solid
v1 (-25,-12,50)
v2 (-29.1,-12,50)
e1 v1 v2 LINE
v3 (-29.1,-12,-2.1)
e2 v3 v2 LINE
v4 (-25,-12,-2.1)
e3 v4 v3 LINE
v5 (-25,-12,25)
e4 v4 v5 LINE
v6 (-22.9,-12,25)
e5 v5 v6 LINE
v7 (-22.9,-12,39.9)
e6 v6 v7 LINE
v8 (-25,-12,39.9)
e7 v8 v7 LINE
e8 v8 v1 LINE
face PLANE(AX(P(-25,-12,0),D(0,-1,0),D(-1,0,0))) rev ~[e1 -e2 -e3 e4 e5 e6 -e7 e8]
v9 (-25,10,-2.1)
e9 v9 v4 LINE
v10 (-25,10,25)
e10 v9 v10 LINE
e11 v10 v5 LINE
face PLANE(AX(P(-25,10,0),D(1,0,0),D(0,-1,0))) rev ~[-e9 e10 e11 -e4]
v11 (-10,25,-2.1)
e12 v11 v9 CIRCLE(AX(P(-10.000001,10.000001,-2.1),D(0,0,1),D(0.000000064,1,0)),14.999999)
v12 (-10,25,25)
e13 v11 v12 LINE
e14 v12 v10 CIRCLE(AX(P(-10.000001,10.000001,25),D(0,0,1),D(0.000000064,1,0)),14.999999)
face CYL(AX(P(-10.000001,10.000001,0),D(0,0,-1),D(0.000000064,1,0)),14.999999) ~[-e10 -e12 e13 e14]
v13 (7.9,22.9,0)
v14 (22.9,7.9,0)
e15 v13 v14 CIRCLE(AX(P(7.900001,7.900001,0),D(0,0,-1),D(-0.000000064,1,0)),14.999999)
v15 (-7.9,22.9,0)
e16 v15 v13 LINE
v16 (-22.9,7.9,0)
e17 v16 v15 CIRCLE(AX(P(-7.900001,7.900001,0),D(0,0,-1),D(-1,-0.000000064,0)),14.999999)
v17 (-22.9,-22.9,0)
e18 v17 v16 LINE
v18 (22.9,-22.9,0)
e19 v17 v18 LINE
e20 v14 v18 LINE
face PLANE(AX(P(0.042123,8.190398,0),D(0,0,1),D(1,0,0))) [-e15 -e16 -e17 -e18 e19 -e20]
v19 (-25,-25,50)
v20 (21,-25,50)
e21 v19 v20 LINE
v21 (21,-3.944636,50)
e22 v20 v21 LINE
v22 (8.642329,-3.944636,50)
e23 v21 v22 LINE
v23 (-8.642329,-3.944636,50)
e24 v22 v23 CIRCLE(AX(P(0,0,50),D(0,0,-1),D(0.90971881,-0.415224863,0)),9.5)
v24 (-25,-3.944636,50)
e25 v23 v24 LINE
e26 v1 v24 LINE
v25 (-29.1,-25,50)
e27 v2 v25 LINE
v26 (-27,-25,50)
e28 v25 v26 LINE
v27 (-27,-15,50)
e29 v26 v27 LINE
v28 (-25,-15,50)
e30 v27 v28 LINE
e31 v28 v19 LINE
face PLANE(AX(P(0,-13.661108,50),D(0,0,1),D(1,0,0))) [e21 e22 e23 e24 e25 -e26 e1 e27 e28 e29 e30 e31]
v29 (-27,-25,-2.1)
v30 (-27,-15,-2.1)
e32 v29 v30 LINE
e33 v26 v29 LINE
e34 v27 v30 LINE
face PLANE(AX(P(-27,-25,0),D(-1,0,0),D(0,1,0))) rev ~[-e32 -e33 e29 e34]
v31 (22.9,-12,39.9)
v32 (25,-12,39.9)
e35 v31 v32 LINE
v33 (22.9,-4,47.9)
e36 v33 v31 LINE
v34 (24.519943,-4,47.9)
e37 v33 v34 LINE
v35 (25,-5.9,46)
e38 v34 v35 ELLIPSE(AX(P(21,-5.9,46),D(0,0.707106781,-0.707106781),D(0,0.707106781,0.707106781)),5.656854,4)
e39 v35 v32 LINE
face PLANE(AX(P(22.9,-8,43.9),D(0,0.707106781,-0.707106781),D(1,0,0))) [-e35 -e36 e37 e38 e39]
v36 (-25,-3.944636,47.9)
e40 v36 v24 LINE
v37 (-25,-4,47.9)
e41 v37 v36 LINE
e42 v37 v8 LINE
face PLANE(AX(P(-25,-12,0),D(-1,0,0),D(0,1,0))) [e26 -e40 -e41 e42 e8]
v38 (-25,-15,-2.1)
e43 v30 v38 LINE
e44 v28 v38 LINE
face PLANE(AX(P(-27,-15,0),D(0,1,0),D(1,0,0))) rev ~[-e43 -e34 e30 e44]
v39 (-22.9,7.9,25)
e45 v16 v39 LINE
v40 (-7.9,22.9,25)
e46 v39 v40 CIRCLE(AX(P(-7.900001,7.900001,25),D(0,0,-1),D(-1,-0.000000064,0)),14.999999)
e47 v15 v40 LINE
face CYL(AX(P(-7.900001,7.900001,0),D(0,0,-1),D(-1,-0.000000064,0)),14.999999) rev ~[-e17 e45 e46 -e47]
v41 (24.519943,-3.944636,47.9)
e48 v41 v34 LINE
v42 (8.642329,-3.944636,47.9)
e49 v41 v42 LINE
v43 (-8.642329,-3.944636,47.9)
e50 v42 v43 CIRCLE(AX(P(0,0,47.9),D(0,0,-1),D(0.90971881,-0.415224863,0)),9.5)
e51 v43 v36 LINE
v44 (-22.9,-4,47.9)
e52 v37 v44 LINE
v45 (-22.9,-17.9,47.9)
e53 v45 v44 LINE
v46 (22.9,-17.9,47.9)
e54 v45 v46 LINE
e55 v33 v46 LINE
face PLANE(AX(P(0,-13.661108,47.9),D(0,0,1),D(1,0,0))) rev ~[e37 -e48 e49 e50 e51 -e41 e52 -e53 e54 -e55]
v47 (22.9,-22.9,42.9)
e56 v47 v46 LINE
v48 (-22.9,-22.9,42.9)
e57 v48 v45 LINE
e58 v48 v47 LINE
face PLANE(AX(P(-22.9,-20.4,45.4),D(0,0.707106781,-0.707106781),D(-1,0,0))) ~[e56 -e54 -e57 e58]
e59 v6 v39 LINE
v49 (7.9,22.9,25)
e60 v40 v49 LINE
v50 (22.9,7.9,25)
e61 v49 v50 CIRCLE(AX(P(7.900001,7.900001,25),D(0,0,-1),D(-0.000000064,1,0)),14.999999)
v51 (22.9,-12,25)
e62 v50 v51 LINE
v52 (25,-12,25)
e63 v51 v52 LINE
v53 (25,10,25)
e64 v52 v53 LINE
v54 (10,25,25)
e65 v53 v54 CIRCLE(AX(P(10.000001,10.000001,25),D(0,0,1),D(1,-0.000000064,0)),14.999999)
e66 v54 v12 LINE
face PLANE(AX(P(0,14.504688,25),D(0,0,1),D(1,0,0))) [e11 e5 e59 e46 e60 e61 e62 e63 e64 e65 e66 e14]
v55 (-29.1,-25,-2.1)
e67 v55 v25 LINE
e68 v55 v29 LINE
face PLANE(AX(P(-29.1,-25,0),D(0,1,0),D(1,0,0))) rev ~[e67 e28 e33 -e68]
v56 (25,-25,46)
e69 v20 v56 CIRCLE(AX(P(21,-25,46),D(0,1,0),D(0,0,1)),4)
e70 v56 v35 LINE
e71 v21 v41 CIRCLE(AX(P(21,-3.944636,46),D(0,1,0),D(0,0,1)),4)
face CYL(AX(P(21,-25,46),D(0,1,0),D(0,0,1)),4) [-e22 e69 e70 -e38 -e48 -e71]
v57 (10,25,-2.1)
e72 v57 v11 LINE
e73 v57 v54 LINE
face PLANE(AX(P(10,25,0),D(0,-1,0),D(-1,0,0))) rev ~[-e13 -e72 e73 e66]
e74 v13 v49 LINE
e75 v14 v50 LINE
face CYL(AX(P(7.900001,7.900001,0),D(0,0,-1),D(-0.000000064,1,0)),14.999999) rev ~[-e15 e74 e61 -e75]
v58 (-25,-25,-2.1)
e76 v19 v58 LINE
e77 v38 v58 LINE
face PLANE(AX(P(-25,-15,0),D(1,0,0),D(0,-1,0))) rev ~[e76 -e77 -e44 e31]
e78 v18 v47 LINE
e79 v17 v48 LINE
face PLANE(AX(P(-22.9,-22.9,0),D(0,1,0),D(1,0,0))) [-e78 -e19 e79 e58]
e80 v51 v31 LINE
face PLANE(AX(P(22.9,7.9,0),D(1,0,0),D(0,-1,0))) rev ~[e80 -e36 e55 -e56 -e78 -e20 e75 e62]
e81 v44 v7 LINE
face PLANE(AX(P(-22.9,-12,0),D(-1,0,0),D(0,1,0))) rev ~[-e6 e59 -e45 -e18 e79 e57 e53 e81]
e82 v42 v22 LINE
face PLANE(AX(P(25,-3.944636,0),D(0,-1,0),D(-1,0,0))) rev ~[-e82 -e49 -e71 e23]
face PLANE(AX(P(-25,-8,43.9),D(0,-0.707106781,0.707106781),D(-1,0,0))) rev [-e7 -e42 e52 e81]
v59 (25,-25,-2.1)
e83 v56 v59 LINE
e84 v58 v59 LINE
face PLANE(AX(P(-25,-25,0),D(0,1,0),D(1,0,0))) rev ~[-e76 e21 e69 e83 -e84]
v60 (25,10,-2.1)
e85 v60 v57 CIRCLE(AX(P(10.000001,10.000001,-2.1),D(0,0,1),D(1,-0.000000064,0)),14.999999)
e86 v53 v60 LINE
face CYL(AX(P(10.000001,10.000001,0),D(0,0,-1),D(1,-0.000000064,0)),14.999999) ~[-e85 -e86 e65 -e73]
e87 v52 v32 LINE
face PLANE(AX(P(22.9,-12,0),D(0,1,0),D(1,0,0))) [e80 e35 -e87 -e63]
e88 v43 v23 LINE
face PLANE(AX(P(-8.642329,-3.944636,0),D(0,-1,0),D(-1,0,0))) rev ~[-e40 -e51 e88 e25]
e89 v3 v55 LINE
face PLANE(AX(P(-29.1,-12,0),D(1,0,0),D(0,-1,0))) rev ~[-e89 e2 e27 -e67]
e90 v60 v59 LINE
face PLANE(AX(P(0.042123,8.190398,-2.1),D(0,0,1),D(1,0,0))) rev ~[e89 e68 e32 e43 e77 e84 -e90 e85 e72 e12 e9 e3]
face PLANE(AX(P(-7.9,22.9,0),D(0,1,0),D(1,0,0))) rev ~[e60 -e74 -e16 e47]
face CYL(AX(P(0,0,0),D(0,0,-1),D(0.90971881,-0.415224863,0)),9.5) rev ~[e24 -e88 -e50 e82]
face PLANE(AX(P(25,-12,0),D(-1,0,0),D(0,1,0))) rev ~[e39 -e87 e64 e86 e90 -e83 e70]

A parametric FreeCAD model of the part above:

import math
import FreeCAD as App
import Part
import Sketcher
Q = App.Units.Quantity


def edges_at(feature, points):
    """Names of the edges that pass closest to the given points."""
    edges = feature.Shape.Edges
    near = lambda p: min(range(len(edges)), key=lambda i: edges[i].distToShape(Part.Vertex(*p))[0])
    return sorted({f"Edge{near(p) + 1}" for p in points})

doc = App.newDocument("Part")
params = doc.addObject("Spreadsheet::Sheet", "Params")
for row, (alias, value) in enumerate([
    ("sketch1_radius", "14.999999 mm"),
    ("sketch1_width", "2 mm"),
    ("sketch1_width2", "50 mm"),
    ("sketch1_height", "13 mm"),
    ("sketch1_height2", "10 mm"),
    ("pad1_length", "2.1 mm"),
    ("sketch2_radius", "9.5 mm"),
    ("sketch2_width", "2 mm"),
    ("sketch2_width2", "50 mm"),
    ("sketch2_height", "13 mm"),
    ("sketch2_height2", "10 mm"),
    ("pad2_length", "50 mm"),
    ("pad2_length2", "2.1 mm"),
    ("sketch3_radius", "9.5 mm"),
    ("sketch3_width", "45.8 mm"),
    ("sketch3_width2", "2.1 mm"),
    ("sketch3_height", "10.9 mm"),
    ("pocket1_length", "47.9 mm"),
    ("chamfer_size", "5 mm"),
    ("sketch4_radius", "14.999999 mm"),
    ("sketch4_width", "20 mm"),
    ("sketch4_height", "22 mm"),
    ("sketch4_width2", "2.1 mm"),
    ("sketch4_height2", "19.9 mm"),
    ("pad3_length", "25 mm"),
    ("chamfer2_size", "8 mm"),
    ("fillet_radius", "4 mm"),
], start=1):
    params.set(f"A{row}", alias)
    params.set(f"B{row}", "=" + value)
    params.setAlias(f"B{row}", alias)

body = doc.addObject("PartDesign::Body", "Body")

sketch1 = body.newObject("Sketcher::SketchObject", "Sketch")
sketch1.AttachmentSupport = (doc.getObject("XY_Plane"), [""])
sketch1.MapMode = "FlatFace"
sketch1.addGeometry(Part.LineSegment(App.Vector(-25, -12, 0), App.Vector(-29.1, -12, 0)), False)
sketch1.addGeometry(Part.LineSegment(App.Vector(-29.1, -12, 0), App.Vector(-29.1, -25, 0)), False)
sketch1.addGeometry(Part.LineSegment(App.Vector(-29.1, -25, 0), App.Vector(-27, -25, 0)), False)
sketch1.addGeometry(Part.LineSegment(App.Vector(-27, -25, 0), App.Vector(-27, -15, 0)), False)
sketch1.addGeometry(Part.LineSegment(App.Vector(-27, -15, 0), App.Vector(-25, -15, 0)), False)
sketch1.addGeometry(Part.LineSegment(App.Vector(-25, -15, 0), App.Vector(-25, -25, 0)), False)
sketch1.addGeometry(Part.LineSegment(App.Vector(-25, -25, 0), App.Vector(25, -25, 0)), False)
sketch1.addGeometry(Part.LineSegment(App.Vector(25, -25, 0), App.Vector(25, 10, 0)), False)
sketch1.addGeometry(Part.ArcOfCircle(Part.Circle(App.Vector(10, 10, 0), App.Vector(0, 0, 1), 15), math.radians(0), math.radians(90)), False)
sketch1.addGeometry(Part.LineSegment(App.Vector(10, 25, 0), App.Vector(-10, 25, 0)), False)
sketch1.addGeometry(Part.ArcOfCircle(Part.Circle(App.Vector(-10, 10, 0), App.Vector(0, 0, 1), 15), math.radians(90), math.radians(180)), False)
sketch1.addGeometry(Part.LineSegment(App.Vector(-25, 10, 0), App.Vector(-25, -12, 0)), False)
sketch1.addConstraint(Sketcher.Constraint("Coincident", 0, 2, 1, 1))
sketch1.addConstraint(Sketcher.Constraint("Coincident", 1, 2, 2, 1))
sketch1.addConstraint(Sketcher.Constraint("Coincident", 2, 2, 3, 1))
sketch1.addConstraint(Sketcher.Constraint("Coincident", 3, 2, 4, 1))
sketch1.addConstraint(Sketcher.Constraint("Coincident", 4, 2, 5, 1))
sketch1.addConstraint(Sketcher.Constraint("Coincident", 5, 2, 6, 1))
sketch1.addConstraint(Sketcher.Constraint("Coincident", 6, 2, 7, 1))
sketch1.addConstraint(Sketcher.Constraint("Tangent", 7, 2, 8, 1))
sketch1.addConstraint(Sketcher.Constraint("Tangent", 8, 2, 9, 1))
sketch1.addConstraint(Sketcher.Constraint("Tangent", 9, 2, 10, 1))
sketch1.addConstraint(Sketcher.Constraint("Tangent", 10, 2, 11, 1))
sketch1.addConstraint(Sketcher.Constraint("Coincident", 11, 2, 0, 1))
sketch1.addConstraint(Sketcher.Constraint("Horizontal", 0))
sketch1.addConstraint(Sketcher.Constraint("Vertical", 1))
sketch1.addConstraint(Sketcher.Constraint("Horizontal", 2))
sketch1.addConstraint(Sketcher.Constraint("Vertical", 3))
sketch1.addConstraint(Sketcher.Constraint("Horizontal", 4))
sketch1.addConstraint(Sketcher.Constraint("Vertical", 5))
sketch1.addConstraint(Sketcher.Constraint("Horizontal", 6))
sketch1.addConstraint(Sketcher.Constraint("Vertical", 7))
sketch1.addConstraint(Sketcher.Constraint("Horizontal", 9))
sketch1.addConstraint(Sketcher.Constraint("Vertical", 11))
sketch1.addConstraint(Sketcher.Constraint("Equal", 8, 10))
sketch1.addConstraint(Sketcher.Constraint("Horizontal", 2, 2, 5, 2))
sketch1.addConstraint(Sketcher.Constraint("Vertical", 5, 2, 10, 2))
sketch1.addConstraint(Sketcher.Constraint("Radius", 8, Q("14.999999 mm")))
sketch1.addConstraint(Sketcher.Constraint("DistanceX", 4, 1, 4, 2, Q("2 mm")))
sketch1.addConstraint(Sketcher.Constraint("DistanceX", 6, 1, 6, 2, Q("50 mm")))
sketch1.addConstraint(Sketcher.Constraint("DistanceY", 1, 2, 1, 1, Q("13 mm")))
sketch1.addConstraint(Sketcher.Constraint("DistanceY", 3, 1, 3, 2, Q("10 mm")))
sketch1.addConstraint(Sketcher.Constraint("DistanceY", 7, 1, 7, 2, Q("35 mm")))
sketch1.addConstraint(Sketcher.Constraint("DistanceX", 0, 2, 0, 1, Q("4.1 mm")))
sketch1.addConstraint(Sketcher.Constraint("DistanceX", -1, 1, 8, 3, Q("10.000001 mm")))
sketch1.addConstraint(Sketcher.Constraint("DistanceY", -1, 1, 8, 3, Q("10.000001 mm")))
sketch1.setExpression("Constraints[25]", "Params.sketch1_radius")
sketch1.setExpression("Constraints[26]", "Params.sketch1_width")
sketch1.setExpression("Constraints[27]", "Params.sketch1_width2")
sketch1.setExpression("Constraints[28]", "Params.sketch1_height")
sketch1.setExpression("Constraints[29]", "Params.sketch1_height2")
pad1 = body.newObject("PartDesign::Pad", "Pad")
pad1.Profile = sketch1
pad1.setExpression("Length", "Params.pad1_length")
pad1.Reversed = True

sketch2 = body.newObject("Sketcher::SketchObject", "Sketch001")
sketch2.AttachmentSupport = (doc.getObject("XY_Plane"), [""])
sketch2.MapMode = "FlatFace"
sketch2.addGeometry(Part.ArcOfCircle(Part.Circle(App.Vector(0, 0, 0), App.Vector(0, 0, 1), 9.5), math.radians(-155), math.radians(-25)), False)
sketch2.addGeometry(Part.LineSegment(App.Vector(-8.6, -3.9, 0), App.Vector(-25, -3.9, 0)), False)
sketch2.addGeometry(Part.LineSegment(App.Vector(-25, -3.9, 0), App.Vector(-25, -12, 0)), False)
sketch2.addGeometry(Part.LineSegment(App.Vector(-25, -12, 0), App.Vector(-29.1, -12, 0)), False)
sketch2.addGeometry(Part.LineSegment(App.Vector(-29.1, -12, 0), App.Vector(-29.1, -25, 0)), False)
sketch2.addGeometry(Part.LineSegment(App.Vector(-29.1, -25, 0), App.Vector(-27, -25, 0)), False)
sketch2.addGeometry(Part.LineSegment(App.Vector(-27, -25, 0), App.Vector(-27, -15, 0)), False)
sketch2.addGeometry(Part.LineSegment(App.Vector(-27, -15, 0), App.Vector(-25, -15, 0)), False)
sketch2.addGeometry(Part.LineSegment(App.Vector(-25, -15, 0), App.Vector(-25, -25, 0)), False)
sketch2.addGeometry(Part.LineSegment(App.Vector(-25, -25, 0), App.Vector(25, -25, 0)), False)
sketch2.addGeometry(Part.LineSegment(App.Vector(25, -25, 0), App.Vector(25, -3.9, 0)), False)
sketch2.addGeometry(Part.LineSegment(App.Vector(25, -3.9, 0), App.Vector(8.6, -3.9, 0)), False)
sketch2.addConstraint(Sketcher.Constraint("Coincident", 0, 1, 1, 1))
sketch2.addConstraint(Sketcher.Constraint("Coincident", 1, 2, 2, 1))
sketch2.addConstraint(Sketcher.Constraint("Coincident", 2, 2, 3, 1))
sketch2.addConstraint(Sketcher.Constraint("Coincident", 3, 2, 4, 1))
sketch2.addConstraint(Sketcher.Constraint("Coincident", 4, 2, 5, 1))
sketch2.addConstraint(Sketcher.Constraint("Coincident", 5, 2, 6, 1))
sketch2.addConstraint(Sketcher.Constraint("Coincident", 6, 2, 7, 1))
sketch2.addConstraint(Sketcher.Constraint("Coincident", 7, 2, 8, 1))
sketch2.addConstraint(Sketcher.Constraint("Coincident", 8, 2, 9, 1))
sketch2.addConstraint(Sketcher.Constraint("Coincident", 9, 2, 10, 1))
sketch2.addConstraint(Sketcher.Constraint("Coincident", 10, 2, 11, 1))
sketch2.addConstraint(Sketcher.Constraint("Coincident", 11, 2, 0, 2))
sketch2.addConstraint(Sketcher.Constraint("Horizontal", 1))
sketch2.addConstraint(Sketcher.Constraint("Vertical", 2))
sketch2.addConstraint(Sketcher.Constraint("Horizontal", 3))
sketch2.addConstraint(Sketcher.Constraint("Vertical", 4))
sketch2.addConstraint(Sketcher.Constraint("Horizontal", 5))
sketch2.addConstraint(Sketcher.Constraint("Vertical", 6))
sketch2.addConstraint(Sketcher.Constraint("Horizontal", 7))
sketch2.addConstraint(Sketcher.Constraint("Vertical", 8))
sketch2.addConstraint(Sketcher.Constraint("Horizontal", 9))
sketch2.addConstraint(Sketcher.Constraint("Vertical", 10))
sketch2.addConstraint(Sketcher.Constraint("Horizontal", 11))
sketch2.addConstraint(Sketcher.Constraint("Coincident", 0, 3, -1, 1))
sketch2.addConstraint(Sketcher.Constraint("Symmetric", 1, 2, 10, 2, -2))
sketch2.addConstraint(Sketcher.Constraint("Horizontal", 5, 2, 8, 2))
sketch2.addConstraint(Sketcher.Constraint("Vertical", 2, 2, 7, 2))
sketch2.addConstraint(Sketcher.Constraint("Radius", 0, Q("9.5 mm")))
sketch2.addConstraint(Sketcher.Constraint("DistanceX", 7, 1, 7, 2, Q("2 mm")))
sketch2.addConstraint(Sketcher.Constraint("DistanceX", 9, 1, 9, 2, Q("50 mm")))
sketch2.addConstraint(Sketcher.Constraint("DistanceY", 4, 2, 4, 1, Q("13 mm")))
sketch2.addConstraint(Sketcher.Constraint("DistanceY", 6, 1, 6, 2, Q("10 mm")))
sketch2.addConstraint(Sketcher.Constraint("DistanceX", 3, 2, 3, 1, Q("4.1 mm")))
sketch2.addConstraint(Sketcher.Constraint("DistanceY", 2, 2, -1, 1, Q("12 mm")))
sketch2.addConstraint(Sketcher.Constraint("DistanceX", 1, 2, 1, 1, Q("16.357671 mm")))
sketch2.setExpression("Constraints[27]", "Params.sketch2_radius")
sketch2.setExpression("Constraints[28]", "Params.sketch2_width")
sketch2.setExpression("Constraints[29]", "Params.sketch2_width2")
sketch2.setExpression("Constraints[30]", "Params.sketch2_height")
sketch2.setExpression("Constraints[31]", "Params.sketch2_height2")
pad2 = body.newObject("PartDesign::Pad", "Pad001")
pad2.Profile = sketch2
pad2.Type = "TwoLengths"
pad2.setExpression("Length", "Params.pad2_length")
pad2.setExpression("Length2", "Params.pad2_length2")

sketch3 = body.newObject("Sketcher::SketchObject", "Sketch002")
sketch3.AttachmentSupport = (doc.getObject("XY_Plane"), [""])
sketch3.MapMode = "FlatFace"
sketch3.addGeometry(Part.LineSegment(App.Vector(-22.9, -22.9, 0), App.Vector(22.9, -22.9, 0)), False)
sketch3.addGeometry(Part.LineSegment(App.Vector(22.9, -22.9, 0), App.Vector(22.9, -12, 0)), False)
sketch3.addGeometry(Part.LineSegment(App.Vector(22.9, -12, 0), App.Vector(25, -12, 0)), False)
sketch3.addGeometry(Part.LineSegment(App.Vector(25, -12, 0), App.Vector(25, -3.9, 0)), False)
sketch3.addGeometry(Part.LineSegment(App.Vector(25, -3.9, 0), App.Vector(8.6, -3.9, 0)), False)
sketch3.addGeometry(Part.ArcOfCircle(Part.Circle(App.Vector(0, 0, 0), App.Vector(0, 0, 1), 9.5), math.radians(-155), math.radians(-25)), False)
sketch3.addGeometry(Part.LineSegment(App.Vector(-8.6, -3.9, 0), App.Vector(-25, -3.9, 0)), False)
sketch3.addGeometry(Part.LineSegment(App.Vector(-25, -3.9, 0), App.Vector(-25, -12, 0)), False)
sketch3.addGeometry(Part.LineSegment(App.Vector(-25, -12, 0), App.Vector(-22.9, -12, 0)), False)
sketch3.addGeometry(Part.LineSegment(App.Vector(-22.9, -12, 0), App.Vector(-22.9, -22.9, 0)), False)
sketch3.addConstraint(Sketcher.Constraint("Coincident", 0, 2, 1, 1))
sketch3.addConstraint(Sketcher.Constraint("Coincident", 1, 2, 2, 1))
sketch3.addConstraint(Sketcher.Constraint("Coincident", 2, 2, 3, 1))
sketch3.addConstraint(Sketcher.Constraint("Coincident", 3, 2, 4, 1))
sketch3.addConstraint(Sketcher.Constraint("Coincident", 4, 2, 5, 2))
sketch3.addConstraint(Sketcher.Constraint("Coincident", 5, 1, 6, 1))
sketch3.addConstraint(Sketcher.Constraint("Coincident", 6, 2, 7, 1))
sketch3.addConstraint(Sketcher.Constraint("Coincident", 7, 2, 8, 1))
sketch3.addConstraint(Sketcher.Constraint("Coincident", 8, 2, 9, 1))
sketch3.addConstraint(Sketcher.Constraint("Coincident", 9, 2, 0, 1))
sketch3.addConstraint(Sketcher.Constraint("Horizontal", 0))
sketch3.addConstraint(Sketcher.Constraint("Vertical", 1))
sketch3.addConstraint(Sketcher.Constraint("Horizontal", 2))
sketch3.addConstraint(Sketcher.Constraint("Vertical", 3))
sketch3.addConstraint(Sketcher.Constraint("Horizontal", 4))
sketch3.addConstraint(Sketcher.Constraint("Horizontal", 6))
sketch3.addConstraint(Sketcher.Constraint("Vertical", 7))
sketch3.addConstraint(Sketcher.Constraint("Horizontal", 8))
sketch3.addConstraint(Sketcher.Constraint("Vertical", 9))
sketch3.addConstraint(Sketcher.Constraint("Coincident", 5, 3, -1, 1))
sketch3.addConstraint(Sketcher.Constraint("Symmetric", 3, 2, 6, 2, -2))
sketch3.addConstraint(Sketcher.Constraint("Symmetric", 1, 2, 8, 2, -2))
sketch3.addConstraint(Sketcher.Constraint("Radius", 5, Q("9.5 mm")))
sketch3.addConstraint(Sketcher.Constraint("DistanceX", 0, 1, 0, 2, Q("45.8 mm")))
sketch3.addConstraint(Sketcher.Constraint("DistanceX", 2, 1, 2, 2, Q("2.1 mm")))
sketch3.addConstraint(Sketcher.Constraint("DistanceY", 1, 1, 1, 2, Q("10.9 mm")))
sketch3.addConstraint(Sketcher.Constraint("DistanceY", 1, 2, -1, 1, Q("12 mm")))
sketch3.addConstraint(Sketcher.Constraint("DistanceX", 4, 2, 4, 1, Q("16.357671 mm")))
sketch3.setExpression("Constraints[22]", "Params.sketch3_radius")
sketch3.setExpression("Constraints[23]", "Params.sketch3_width")
sketch3.setExpression("Constraints[24]", "Params.sketch3_width2")
sketch3.setExpression("Constraints[25]", "Params.sketch3_height")
pocket1 = body.newObject("PartDesign::Pocket", "Pocket")
pocket1.Profile = sketch3
pocket1.setExpression("Length", "Params.pocket1_length")
pocket1.Reversed = True
doc.recompute()

chamfer = body.newObject("PartDesign::Chamfer", "Chamfer")
chamfer.Base = (pocket1, edges_at(pocket1, [(0, -22.9, 47.9)]))
chamfer.setExpression("Size", "Params.chamfer_size")

sketch4 = body.newObject("Sketcher::SketchObject", "Sketch003")
sketch4.AttachmentSupport = (doc.getObject("XY_Plane"), [""])
sketch4.MapMode = "FlatFace"
sketch4.addGeometry(Part.ArcOfCircle(Part.Circle(App.Vector(10, 10, 0), App.Vector(0, 0, 1), 15), math.radians(0), math.radians(90)), False)
sketch4.addGeometry(Part.LineSegment(App.Vector(10, 25, 0), App.Vector(-10, 25, 0)), False)
sketch4.addGeometry(Part.ArcOfCircle(Part.Circle(App.Vector(-10, 10, 0), App.Vector(0, 0, 1), 15), math.radians(90), math.radians(180)), False)
sketch4.addGeometry(Part.LineSegment(App.Vector(-25, 10, 0), App.Vector(-25, -12, 0)), False)
sketch4.addGeometry(Part.LineSegment(App.Vector(-25, -12, 0), App.Vector(-22.9, -12, 0)), False)
sketch4.addGeometry(Part.LineSegment(App.Vector(-22.9, -12, 0), App.Vector(-22.9, 7.9, 0)), False)
sketch4.addGeometry(Part.ArcOfCircle(Part.Circle(App.Vector(-7.9, 7.9, 0), App.Vector(0, 0, 1), 15), math.radians(90), math.radians(180)), False)
sketch4.addGeometry(Part.LineSegment(App.Vector(-7.9, 22.9, 0), App.Vector(7.9, 22.9, 0)), False)
sketch4.addGeometry(Part.ArcOfCircle(Part.Circle(App.Vector(7.9, 7.9, 0), App.Vector(0, 0, 1), 15), math.radians(0), math.radians(90)), False)
sketch4.addGeometry(Part.LineSegment(App.Vector(22.9, 7.9, 0), App.Vector(22.9, -12, 0)), False)
sketch4.addGeometry(Part.LineSegment(App.Vector(22.9, -12, 0), App.Vector(25, -12, 0)), False)
sketch4.addGeometry(Part.LineSegment(App.Vector(25, -12, 0), App.Vector(25, 10, 0)), False)
sketch4.addConstraint(Sketcher.Constraint("Tangent", 0, 2, 1, 1))
sketch4.addConstraint(Sketcher.Constraint("Tangent", 1, 2, 2, 1))
sketch4.addConstraint(Sketcher.Constraint("Tangent", 2, 2, 3, 1))
sketch4.addConstraint(Sketcher.Constraint("Coincident", 3, 2, 4, 1))
sketch4.addConstraint(Sketcher.Constraint("Coincident", 4, 2, 5, 1))
sketch4.addConstraint(Sketcher.Constraint("Tangent", 5, 2, 6, 2))
sketch4.addConstraint(Sketcher.Constraint("Tangent", 6, 1, 7, 1))
sketch4.addConstraint(Sketcher.Constraint("Tangent", 7, 2, 8, 2))
sketch4.addConstraint(Sketcher.Constraint("Tangent", 8, 1, 9, 1))
sketch4.addConstraint(Sketcher.Constraint("Coincident", 9, 2, 10, 1))
sketch4.addConstraint(Sketcher.Constraint("Coincident", 10, 2, 11, 1))
sketch4.addConstraint(Sketcher.Constraint("Tangent", 11, 2, 0, 1))
sketch4.addConstraint(Sketcher.Constraint("Horizontal", 1))
sketch4.addConstraint(Sketcher.Constraint("Vertical", 3))
sketch4.addConstraint(Sketcher.Constraint("Horizontal", 4))
sketch4.addConstraint(Sketcher.Constraint("Vertical", 5))
sketch4.addConstraint(Sketcher.Constraint("Horizontal", 7))
sketch4.addConstraint(Sketcher.Constraint("Vertical", 9))
sketch4.addConstraint(Sketcher.Constraint("Horizontal", 10))
sketch4.addConstraint(Sketcher.Constraint("Vertical", 11))
sketch4.addConstraint(Sketcher.Constraint("Equal", 0, 2))
sketch4.addConstraint(Sketcher.Constraint("Equal", 2, 6))
sketch4.addConstraint(Sketcher.Constraint("Equal", 6, 8))
sketch4.addConstraint(Sketcher.Constraint("Symmetric", 4, 2, 9, 2, -2))
sketch4.addConstraint(Sketcher.Constraint("Equal", 4, 10))
sketch4.addConstraint(Sketcher.Constraint("Radius", 0, Q("14.999999 mm")))
sketch4.addConstraint(Sketcher.Constraint("DistanceX", 1, 2, 1, 1, Q("20 mm")))
sketch4.addConstraint(Sketcher.Constraint("DistanceY", 3, 2, 3, 1, Q("22 mm")))
sketch4.addConstraint(Sketcher.Constraint("DistanceX", 4, 1, 4, 2, Q("2.1 mm")))
sketch4.addConstraint(Sketcher.Constraint("DistanceY", 5, 1, 5, 2, Q("19.9 mm")))
sketch4.addConstraint(Sketcher.Constraint("DistanceY", -1, 1, 0, 3, Q("10.000001 mm")))
sketch4.setExpression("Constraints[25]", "Params.sketch4_radius")
sketch4.setExpression("Constraints[26]", "Params.sketch4_width")
sketch4.setExpression("Constraints[27]", "Params.sketch4_height")
sketch4.setExpression("Constraints[28]", "Params.sketch4_width2")
sketch4.setExpression("Constraints[29]", "Params.sketch4_height2")
pad3 = body.newObject("PartDesign::Pad", "Pad002")
pad3.Profile = sketch4
pad3.setExpression("Length", "Params.pad3_length")
doc.recompute()

chamfer2 = body.newObject("PartDesign::Chamfer", "Chamfer001")
chamfer2.Base = (pad3, edges_at(pad3, [(23.95, -12, 47.9), (-23.95, -12, 47.9)]))
chamfer2.setExpression("Size", "Params.chamfer2_size")
doc.recompute()

fillet = body.newObject("PartDesign::Fillet", "Fillet")
fillet.Base = (chamfer2, edges_at(chamfer2, [(25, -14.472, 50)]))
fillet.setExpression("Radius", "Params.fillet_radius")

doc.recompute()
